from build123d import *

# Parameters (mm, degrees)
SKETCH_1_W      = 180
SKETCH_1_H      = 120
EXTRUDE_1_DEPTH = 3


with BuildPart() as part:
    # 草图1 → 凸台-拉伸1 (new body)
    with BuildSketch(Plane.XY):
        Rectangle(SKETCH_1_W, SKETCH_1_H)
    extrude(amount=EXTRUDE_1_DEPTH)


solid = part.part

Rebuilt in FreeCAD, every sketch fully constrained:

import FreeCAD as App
import Part
import Sketcher

doc = App.newDocument("Part")
body = doc.addObject("PartDesign::Body", "Body")

# Sketch on XY plane
sketch1 = body.newObject("Sketcher::SketchObject", "Sketch")
sketch1.AttachmentSupport = (doc.getObject("XY_Plane"), [""])
sketch1.MapMode = "FlatFace"
sketch1.addGeometry([
    Part.LineSegment(App.Vector(-90, 60, 0), App.Vector(-90, -60, 0)),
    Part.LineSegment(App.Vector(-90, -60, 0), App.Vector(90, -60, 0)),
    Part.LineSegment(App.Vector(90, -60, 0), App.Vector(90, 60, 0)),
    Part.LineSegment(App.Vector(90, 60, 0), App.Vector(-90, 60, 0)),
], False)
sketch1.addConstraint([
    Sketcher.Constraint("Coincident", 0, 2, 1, 1),
    Sketcher.Constraint("Coincident", 1, 2, 2, 1),
    Sketcher.Constraint("Coincident", 2, 2, 3, 1),
    Sketcher.Constraint("Coincident", 3, 2, 0, 1),
    Sketcher.Constraint("Vertical", 0),
    Sketcher.Constraint("Horizontal", 1),
    Sketcher.Constraint("Vertical", 2),
    Sketcher.Constraint("Horizontal", 3),
    Sketcher.Constraint("Symmetric", 0, 2, 2, 2, -1, 1),
    Sketcher.Constraint("DistanceX", 1, 1, 1, 2, 180.0),
    Sketcher.Constraint("DistanceY", 0, 2, 0, 1, 120.0),
])
pad1 = body.newObject("PartDesign::Pad", "Pad")
pad1.Profile = sketch1
pad1.Length = 3

doc.recompute()
